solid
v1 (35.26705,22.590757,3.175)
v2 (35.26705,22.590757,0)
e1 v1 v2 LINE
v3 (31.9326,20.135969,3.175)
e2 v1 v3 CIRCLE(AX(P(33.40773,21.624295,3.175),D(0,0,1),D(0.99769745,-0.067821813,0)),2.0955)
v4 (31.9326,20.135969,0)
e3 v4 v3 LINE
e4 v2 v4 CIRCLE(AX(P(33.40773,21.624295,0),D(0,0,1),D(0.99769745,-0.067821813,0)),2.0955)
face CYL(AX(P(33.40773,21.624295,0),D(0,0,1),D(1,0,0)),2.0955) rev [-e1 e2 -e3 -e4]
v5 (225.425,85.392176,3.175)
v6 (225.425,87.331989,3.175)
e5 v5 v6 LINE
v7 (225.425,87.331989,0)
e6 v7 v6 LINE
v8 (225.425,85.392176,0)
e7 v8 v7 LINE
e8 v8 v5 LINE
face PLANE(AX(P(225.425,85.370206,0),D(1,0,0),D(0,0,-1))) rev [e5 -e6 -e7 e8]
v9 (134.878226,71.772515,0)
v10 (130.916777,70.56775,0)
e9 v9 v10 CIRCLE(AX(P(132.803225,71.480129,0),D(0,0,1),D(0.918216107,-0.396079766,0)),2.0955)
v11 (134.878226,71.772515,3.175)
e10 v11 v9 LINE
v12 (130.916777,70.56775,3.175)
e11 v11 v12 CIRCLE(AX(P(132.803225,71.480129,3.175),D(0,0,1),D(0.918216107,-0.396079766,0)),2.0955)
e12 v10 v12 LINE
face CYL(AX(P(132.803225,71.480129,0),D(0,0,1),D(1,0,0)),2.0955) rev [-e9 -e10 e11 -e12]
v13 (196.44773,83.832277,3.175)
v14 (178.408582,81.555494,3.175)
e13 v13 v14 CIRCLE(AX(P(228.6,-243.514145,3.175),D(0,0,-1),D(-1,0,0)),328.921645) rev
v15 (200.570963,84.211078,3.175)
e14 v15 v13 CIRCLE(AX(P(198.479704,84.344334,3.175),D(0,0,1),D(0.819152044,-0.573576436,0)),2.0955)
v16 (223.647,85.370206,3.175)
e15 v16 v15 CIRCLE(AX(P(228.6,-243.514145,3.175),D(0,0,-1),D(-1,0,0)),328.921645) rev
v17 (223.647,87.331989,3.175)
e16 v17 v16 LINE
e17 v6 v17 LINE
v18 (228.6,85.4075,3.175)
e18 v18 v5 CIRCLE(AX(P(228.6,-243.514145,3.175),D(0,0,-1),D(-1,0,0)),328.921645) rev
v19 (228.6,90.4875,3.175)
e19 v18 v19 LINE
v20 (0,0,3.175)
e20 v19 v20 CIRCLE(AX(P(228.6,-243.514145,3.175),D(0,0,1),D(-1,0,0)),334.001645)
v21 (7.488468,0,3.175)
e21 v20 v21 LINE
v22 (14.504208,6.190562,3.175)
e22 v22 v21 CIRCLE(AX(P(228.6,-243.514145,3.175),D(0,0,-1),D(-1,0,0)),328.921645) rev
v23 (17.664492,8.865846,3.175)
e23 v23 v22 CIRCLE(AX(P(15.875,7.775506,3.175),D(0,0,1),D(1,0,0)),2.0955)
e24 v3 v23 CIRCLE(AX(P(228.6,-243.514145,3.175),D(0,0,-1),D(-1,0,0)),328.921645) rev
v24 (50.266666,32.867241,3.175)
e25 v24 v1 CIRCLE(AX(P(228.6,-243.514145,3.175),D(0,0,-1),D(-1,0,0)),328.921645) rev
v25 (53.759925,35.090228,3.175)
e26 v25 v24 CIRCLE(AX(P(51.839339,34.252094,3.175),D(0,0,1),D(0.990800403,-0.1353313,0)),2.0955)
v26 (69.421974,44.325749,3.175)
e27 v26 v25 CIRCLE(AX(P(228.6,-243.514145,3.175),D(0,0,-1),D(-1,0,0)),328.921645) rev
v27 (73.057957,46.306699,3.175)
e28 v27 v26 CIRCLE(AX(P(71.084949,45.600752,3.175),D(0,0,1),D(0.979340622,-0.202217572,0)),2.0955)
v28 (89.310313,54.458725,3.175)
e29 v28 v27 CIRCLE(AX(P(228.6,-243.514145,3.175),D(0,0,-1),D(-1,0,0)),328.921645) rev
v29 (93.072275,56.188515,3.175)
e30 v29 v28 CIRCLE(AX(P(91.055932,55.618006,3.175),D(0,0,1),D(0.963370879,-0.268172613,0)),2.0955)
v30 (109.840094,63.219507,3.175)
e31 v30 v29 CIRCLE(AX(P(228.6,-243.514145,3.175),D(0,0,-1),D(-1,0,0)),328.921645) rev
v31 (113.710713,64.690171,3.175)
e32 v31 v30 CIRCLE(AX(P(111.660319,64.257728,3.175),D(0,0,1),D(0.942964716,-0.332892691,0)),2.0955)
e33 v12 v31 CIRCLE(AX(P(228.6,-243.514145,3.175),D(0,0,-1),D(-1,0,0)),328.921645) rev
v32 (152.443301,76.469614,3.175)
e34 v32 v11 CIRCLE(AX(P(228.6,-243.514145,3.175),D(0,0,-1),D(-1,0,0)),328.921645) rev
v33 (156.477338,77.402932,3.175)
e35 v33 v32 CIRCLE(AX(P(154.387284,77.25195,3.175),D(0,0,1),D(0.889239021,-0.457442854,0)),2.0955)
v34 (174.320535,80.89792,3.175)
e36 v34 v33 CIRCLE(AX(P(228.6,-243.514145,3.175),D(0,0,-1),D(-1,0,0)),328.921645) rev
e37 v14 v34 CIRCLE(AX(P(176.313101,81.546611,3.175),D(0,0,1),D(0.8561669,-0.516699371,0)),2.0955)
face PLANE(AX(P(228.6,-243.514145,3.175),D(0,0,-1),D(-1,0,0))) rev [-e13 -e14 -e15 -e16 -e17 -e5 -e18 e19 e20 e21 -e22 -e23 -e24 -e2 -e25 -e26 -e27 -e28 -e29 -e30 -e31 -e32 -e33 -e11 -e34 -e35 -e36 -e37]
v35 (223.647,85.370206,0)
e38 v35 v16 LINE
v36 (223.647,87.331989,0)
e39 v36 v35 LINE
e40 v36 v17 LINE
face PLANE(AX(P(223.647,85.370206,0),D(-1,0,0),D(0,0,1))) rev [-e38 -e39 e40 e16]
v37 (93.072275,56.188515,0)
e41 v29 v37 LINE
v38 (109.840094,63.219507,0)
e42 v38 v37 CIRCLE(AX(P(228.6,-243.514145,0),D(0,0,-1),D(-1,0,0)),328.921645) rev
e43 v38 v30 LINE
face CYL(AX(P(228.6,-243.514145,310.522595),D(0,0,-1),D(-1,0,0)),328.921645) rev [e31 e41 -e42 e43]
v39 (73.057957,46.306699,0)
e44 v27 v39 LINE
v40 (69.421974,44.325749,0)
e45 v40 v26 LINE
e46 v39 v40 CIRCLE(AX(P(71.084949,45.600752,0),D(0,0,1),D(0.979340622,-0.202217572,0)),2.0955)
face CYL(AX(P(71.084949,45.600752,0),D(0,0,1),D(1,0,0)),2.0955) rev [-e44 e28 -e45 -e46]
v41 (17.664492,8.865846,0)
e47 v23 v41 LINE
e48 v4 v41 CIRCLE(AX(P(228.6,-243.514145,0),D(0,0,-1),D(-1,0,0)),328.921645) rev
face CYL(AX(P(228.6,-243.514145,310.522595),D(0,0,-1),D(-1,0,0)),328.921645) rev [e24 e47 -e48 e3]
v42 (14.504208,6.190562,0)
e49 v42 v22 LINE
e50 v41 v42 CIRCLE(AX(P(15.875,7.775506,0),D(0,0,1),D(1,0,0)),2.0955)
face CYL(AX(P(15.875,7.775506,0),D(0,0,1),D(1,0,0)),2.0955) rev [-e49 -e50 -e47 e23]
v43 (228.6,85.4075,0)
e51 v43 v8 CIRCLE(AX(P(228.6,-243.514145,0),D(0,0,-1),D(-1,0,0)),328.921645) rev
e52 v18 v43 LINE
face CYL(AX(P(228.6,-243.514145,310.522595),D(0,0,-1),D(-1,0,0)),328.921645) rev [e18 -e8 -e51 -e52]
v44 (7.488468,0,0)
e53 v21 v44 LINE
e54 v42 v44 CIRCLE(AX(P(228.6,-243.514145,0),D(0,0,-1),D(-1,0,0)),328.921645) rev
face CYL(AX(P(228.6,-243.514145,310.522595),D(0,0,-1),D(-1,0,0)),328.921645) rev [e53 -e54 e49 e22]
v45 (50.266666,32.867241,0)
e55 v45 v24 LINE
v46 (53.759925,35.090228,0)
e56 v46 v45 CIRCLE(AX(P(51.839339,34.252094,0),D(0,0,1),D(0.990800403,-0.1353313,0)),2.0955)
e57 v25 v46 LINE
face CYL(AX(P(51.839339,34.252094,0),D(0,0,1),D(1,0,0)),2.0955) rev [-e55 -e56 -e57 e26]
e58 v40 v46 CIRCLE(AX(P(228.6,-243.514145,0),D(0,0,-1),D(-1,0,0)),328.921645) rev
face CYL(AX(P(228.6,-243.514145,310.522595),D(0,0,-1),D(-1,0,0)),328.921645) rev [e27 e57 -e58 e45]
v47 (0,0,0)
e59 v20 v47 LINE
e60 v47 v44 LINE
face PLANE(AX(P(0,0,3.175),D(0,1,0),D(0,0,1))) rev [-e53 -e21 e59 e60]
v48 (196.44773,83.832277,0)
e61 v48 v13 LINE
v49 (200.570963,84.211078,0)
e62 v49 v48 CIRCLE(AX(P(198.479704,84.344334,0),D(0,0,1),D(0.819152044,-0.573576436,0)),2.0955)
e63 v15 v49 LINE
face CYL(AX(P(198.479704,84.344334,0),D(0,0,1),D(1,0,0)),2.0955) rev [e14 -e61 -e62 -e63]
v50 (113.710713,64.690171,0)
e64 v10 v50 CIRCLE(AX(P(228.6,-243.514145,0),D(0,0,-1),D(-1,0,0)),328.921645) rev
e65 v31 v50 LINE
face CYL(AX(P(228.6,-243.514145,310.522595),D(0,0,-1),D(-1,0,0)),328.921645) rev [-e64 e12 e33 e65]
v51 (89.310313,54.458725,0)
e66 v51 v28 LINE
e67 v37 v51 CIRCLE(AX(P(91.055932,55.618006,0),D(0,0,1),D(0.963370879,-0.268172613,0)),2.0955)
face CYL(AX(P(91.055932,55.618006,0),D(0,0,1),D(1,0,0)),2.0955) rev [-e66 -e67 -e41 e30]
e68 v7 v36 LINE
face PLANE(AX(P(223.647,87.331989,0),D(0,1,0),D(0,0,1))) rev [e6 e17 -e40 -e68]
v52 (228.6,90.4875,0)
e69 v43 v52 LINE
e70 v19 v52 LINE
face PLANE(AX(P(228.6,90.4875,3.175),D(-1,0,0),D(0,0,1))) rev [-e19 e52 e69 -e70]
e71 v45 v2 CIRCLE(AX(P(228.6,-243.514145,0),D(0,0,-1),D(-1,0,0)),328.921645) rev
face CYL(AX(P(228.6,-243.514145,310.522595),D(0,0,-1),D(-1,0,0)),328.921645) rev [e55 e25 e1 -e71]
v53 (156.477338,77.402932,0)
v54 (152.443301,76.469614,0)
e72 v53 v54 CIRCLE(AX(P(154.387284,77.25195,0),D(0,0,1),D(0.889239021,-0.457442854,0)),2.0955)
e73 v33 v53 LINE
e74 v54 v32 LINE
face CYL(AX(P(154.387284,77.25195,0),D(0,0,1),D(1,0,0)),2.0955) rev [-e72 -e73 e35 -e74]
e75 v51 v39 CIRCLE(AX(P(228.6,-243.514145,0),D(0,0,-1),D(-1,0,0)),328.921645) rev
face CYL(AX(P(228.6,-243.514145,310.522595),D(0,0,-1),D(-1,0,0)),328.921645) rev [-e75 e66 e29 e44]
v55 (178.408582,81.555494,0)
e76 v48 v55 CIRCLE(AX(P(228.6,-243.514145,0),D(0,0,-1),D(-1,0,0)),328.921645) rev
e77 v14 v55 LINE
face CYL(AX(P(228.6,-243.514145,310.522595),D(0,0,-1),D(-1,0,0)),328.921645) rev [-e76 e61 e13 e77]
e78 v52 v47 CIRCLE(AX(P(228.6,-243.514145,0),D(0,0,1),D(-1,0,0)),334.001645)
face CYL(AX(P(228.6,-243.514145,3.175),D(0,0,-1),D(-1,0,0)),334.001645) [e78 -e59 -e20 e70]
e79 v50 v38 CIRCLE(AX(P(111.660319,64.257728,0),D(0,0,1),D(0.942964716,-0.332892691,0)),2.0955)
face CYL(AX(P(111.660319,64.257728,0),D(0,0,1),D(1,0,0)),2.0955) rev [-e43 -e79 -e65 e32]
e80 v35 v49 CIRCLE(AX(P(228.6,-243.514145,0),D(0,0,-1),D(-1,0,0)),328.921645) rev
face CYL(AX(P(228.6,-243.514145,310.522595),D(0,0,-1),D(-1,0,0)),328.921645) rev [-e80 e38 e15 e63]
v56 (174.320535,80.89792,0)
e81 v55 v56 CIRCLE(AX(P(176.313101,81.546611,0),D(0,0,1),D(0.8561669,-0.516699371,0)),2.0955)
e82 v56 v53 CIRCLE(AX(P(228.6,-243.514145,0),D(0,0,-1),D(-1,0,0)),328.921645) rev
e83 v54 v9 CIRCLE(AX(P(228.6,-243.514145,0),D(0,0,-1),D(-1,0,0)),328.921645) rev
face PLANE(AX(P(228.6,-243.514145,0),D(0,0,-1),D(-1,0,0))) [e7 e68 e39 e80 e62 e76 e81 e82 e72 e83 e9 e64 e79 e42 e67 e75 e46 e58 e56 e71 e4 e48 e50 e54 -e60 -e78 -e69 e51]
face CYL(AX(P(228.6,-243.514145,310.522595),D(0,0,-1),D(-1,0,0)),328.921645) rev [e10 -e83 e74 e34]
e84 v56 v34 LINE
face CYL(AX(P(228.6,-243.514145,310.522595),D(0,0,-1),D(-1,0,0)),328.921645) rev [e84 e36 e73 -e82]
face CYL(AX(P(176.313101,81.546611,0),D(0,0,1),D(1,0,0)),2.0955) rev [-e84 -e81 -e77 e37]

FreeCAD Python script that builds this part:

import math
import FreeCAD as App
import Part
import Sketcher
Q = App.Units.Quantity


def add_polygon(sketch, points):
    """Adds a closed chain of lines whose ends are joined by coincident constraints."""
    first, n = sketch.GeometryCount, len(points)
    for a, b in zip(points, points[1:] + points[:1]):
        sketch.addGeometry(Part.LineSegment(App.Vector(*a, 0), App.Vector(*b, 0)), False)
    for i in range(n):
        sketch.addConstraint(Sketcher.Constraint("Coincident", first + i, 2, first + (i + 1) % n, 1))

doc = App.newDocument("Part")
body = doc.addObject("PartDesign::Body", "Body")

sketch1 = body.newObject("Sketcher::SketchObject", "Sketch")
sketch1.AttachmentSupport = (doc.getObject("XY_Plane"), [""])
sketch1.MapMode = "FlatFace"
sketch1.addGeometry(Part.LineSegment(App.Vector(0, 0, 0), App.Vector(228.6, 0, 0)), False)
sketch1.addGeometry(Part.LineSegment(App.Vector(228.6, 0, 0), App.Vector(228.6, 90.4875, 0)), False)
sketch1.addGeometry(Part.ArcOfCircle(Part.Circle(App.Vector(228.6, -243.514145, 0), App.Vector(0, 0, 1), 334.001645), math.radians(90), math.radians(133.190621)), False)
sketch1.addGeometry(Part.LineSegment(App.Vector(209.55, 9.525, 0), App.Vector(40.029392, 9.525, 0)), False)
sketch1.addGeometry(Part.ArcOfCircle(Part.Circle(App.Vector(40.029392, 12.7, 0), App.Vector(0, 0, 1), 3.175), math.radians(126.352633), math.radians(270)), False)
sketch1.addGeometry(Part.ArcOfCircle(Part.Circle(App.Vector(228.6, -243.514145, 0), App.Vector(0, 0, 1), 321.301645), math.radians(92.287925), math.radians(126.352633)), False)
sketch1.addGeometry(Part.ArcOfCircle(Part.Circle(App.Vector(215.9, 74.358899, 0), App.Vector(0, 0, 1), 3.175), math.radians(0), math.radians(92.287925)), False)
sketch1.addGeometry(Part.LineSegment(App.Vector(219.075, 74.358899, 0), App.Vector(219.075, 19.05, 0)), False)
sketch1.addGeometry(Part.ArcOfCircle(Part.Circle(App.Vector(209.55, 19.05, 0), App.Vector(0, 0, 1), 9.525), math.radians(-90), math.radians(0)), False)
sketch1.addConstraint(Sketcher.Constraint("Coincident", 0, 2, 1, 1))
sketch1.addConstraint(Sketcher.Constraint("Coincident", 1, 2, 2, 1))
sketch1.addConstraint(Sketcher.Constraint("Coincident", 2, 2, 0, 1))
sketch1.addConstraint(Sketcher.Constraint("Tangent", 3, 2, 4, 2))
sketch1.addConstraint(Sketcher.Constraint("Tangent", 4, 1, 5, 2))
sketch1.addConstraint(Sketcher.Constraint("Tangent", 5, 1, 6, 2))
sketch1.addConstraint(Sketcher.Constraint("Tangent", 6, 1, 7, 1))
sketch1.addConstraint(Sketcher.Constraint("Tangent", 7, 2, 8, 2))
sketch1.addConstraint(Sketcher.Constraint("Tangent", 8, 1, 3, 1))
sketch1.addConstraint(Sketcher.Constraint("Horizontal", 0))
sketch1.addConstraint(Sketcher.Constraint("Vertical", 1))
sketch1.addConstraint(Sketcher.Constraint("Horizontal", 3))
sketch1.addConstraint(Sketcher.Constraint("Vertical", 7))
sketch1.addConstraint(Sketcher.Constraint("Coincident", 2, 2, -1, 1))
sketch1.addConstraint(Sketcher.Constraint("Coincident", 5, 3, 2, 3))
sketch1.addConstraint(Sketcher.Constraint("Equal", 4, 6))
sketch1.addConstraint(Sketcher.Constraint("Vertical", 5, 3, 0, 2))
sketch1.addConstraint(Sketcher.Constraint("DistanceX", 0, 1, 0, 2, Q("9 in")))
sketch1.addConstraint(Sketcher.Constraint("Radius", 4, Q("0.125 in")))
sketch1.addConstraint(Sketcher.Constraint("Radius", 8, Q("0.375 in")))
sketch1.addConstraint(Sketcher.Constraint("DistanceY", -1, 1, 4, 3, Q("0.5 in")))
sketch1.addConstraint(Sketcher.Constraint("DistanceX", -1, 1, 6, 3, Q("8.5 in")))
sketch1.addConstraint(Sketcher.Constraint("DistanceY", 1, 1, 1, 2, Q("3.5625 in")))
sketch1.addConstraint(Sketcher.Constraint("DistanceY", 7, 2, 7, 1, 55.308899))
pad1 = body.newObject("PartDesign::Pad", "Pad")
pad1.Profile = sketch1
pad1.Length = Q("0.125 in")

sketch2 = body.newObject("Sketcher::SketchObject", "Sketch001")
sketch2.AttachmentSupport = (doc.getObject("XY_Plane"), [""])
sketch2.MapMode = "FlatFace"
sketch2.AttachmentOffset = App.Placement(App.Vector(0, 0, 0.125 * 25.4), App.Rotation())
sketch2.addGeometry(Part.Circle(App.Vector(15.875, 7.775506, 0), App.Vector(0, 0, 1), 2.0955), False)
sketch2.addConstraint(Sketcher.Constraint("Diameter", 0, Q("0.165 in")))
sketch2.addConstraint(Sketcher.Constraint("DistanceX", -1, 1, 0, 3, Q("0.625 in")))
sketch2.addConstraint(Sketcher.Constraint("DistanceY", -1, 1, 0, 3, 7.775506))
pocket1 = body.newObject("PartDesign::Pocket", "Pocket")
pocket1.Profile = sketch2
pocket1.Type = "ThroughAll"
doc.recompute()

datumline = body.newObject("PartDesign::Line", "DatumLine")
datumline.Placement = App.Placement(App.Vector(228.6, -243.514145, 0), App.Rotation(App.Vector(0, 0, 1), App.Vector(0, 0, -1)))
polarpattern = body.newObject("PartDesign::PolarPattern", "PolarPattern")
polarpattern.Originals = [pocket1]
polarpattern.Axis = (datumline, [""])
polarpattern.Angle = 35
polarpattern.Occurrences = 10
body.Tip = polarpattern

sketch3 = body.newObject("Sketcher::SketchObject", "Sketch002")
sketch3.AttachmentSupport = (doc.getObject("XY_Plane"), [""])
sketch3.MapMode = "FlatFace"
sketch3.AttachmentOffset = App.Placement(App.Vector(0, 0, 0.125 * 25.4), App.Rotation())
sketch3.addGeometry(Part.LineSegment(App.Vector(726.667213, 85.4075, 0), App.Vector(228.6, 85.4075, 0)), False)
sketch3.addGeometry(Part.ArcOfCircle(Part.Circle(App.Vector(228.6, -243.514145, 0), App.Vector(0, 0, 1), 328.921645), math.radians(90), math.radians(133.190621)), False)
sketch3.addGeometry(Part.LineSegment(App.Vector(3.476893, -3.70373, 0), App.Vector(-359.654287, -344.59476, 0)), False)
sketch3.addGeometry(Part.LineSegment(App.Vector(-359.654287, -344.59476, 0), App.Vector(6.971445, -1270.807137, 0)), False)
sketch3.addGeometry(Part.LineSegment(App.Vector(6.971445, -1270.807137, 0), App.Vector(1093.292945, -840.804876, 0)), False)
sketch3.addGeometry(Part.LineSegment(App.Vector(1093.292945, -840.804876, 0), App.Vector(726.667213, 85.4075, 0)), False)
sketch3.addConstraint(Sketcher.Constraint("Tangent", 0, 2, 1, 1))
sketch3.addConstraint(Sketcher.Constraint("Tangent", 1, 2, 2, 1))
sketch3.addConstraint(Sketcher.Constraint("Coincident", 2, 2, 3, 1))
sketch3.addConstraint(Sketcher.Constraint("Coincident", 3, 2, 4, 1))
sketch3.addConstraint(Sketcher.Constraint("Coincident", 4, 2, 5, 1))
sketch3.addConstraint(Sketcher.Constraint("Coincident", 5, 2, 0, 1))
sketch3.addConstraint(Sketcher.Constraint("Horizontal", 0))
sketch3.addConstraint(Sketcher.Constraint("Perpendicular", 3, 4))
sketch3.addConstraint(Sketcher.Constraint("Perpendicular", 4, 5))
sketch3.addConstraint(Sketcher.Constraint("Equal", 3, 5))
sketch3.addConstraint(Sketcher.Constraint("DistanceX", -1, 1, 1, 3, Q("9 in")))
sketch3.addConstraint(Sketcher.Constraint("DistanceY", -1, 1, 0, 2, Q("3.3625 in")))
sketch3.addConstraint(Sketcher.Constraint("Radius", 1, 328.921645))
sketch3.addConstraint(Sketcher.Constraint("DistanceX", 3, 2, 4, 2, 1086.3215))
sketch3.addConstraint(Sketcher.Constraint("Distance", 4, 1168.33058))
sketch3.addConstraint(Sketcher.Constraint("DistanceX", 0, 2, 0, 1, 498.067213))
sketch3.addConstraint(Sketcher.Constraint("DistanceY", 4, 2, 1, 3, 597.290732))
pocket2 = body.newObject("PartDesign::Pocket", "Pocket001")
pocket2.Profile = sketch3
pocket2.Type = "ThroughAll"
pocket2.Midplane = True

sketch4 = body.newObject("Sketcher::SketchObject", "Sketch003")
sketch4.AttachmentSupport = (doc.getObject("XY_Plane"), [""])
sketch4.MapMode = "FlatFace"
sketch4.AttachmentOffset = App.Placement(App.Vector(0, 0, 0.125 * 25.4), App.Rotation())
add_polygon(sketch4, [(223.647, 87.331989), (223.647, 85.370206), (225.425, 85.370206), (225.425, 87.331989)])
sketch4.addConstraint(Sketcher.Constraint("Vertical", 0))
sketch4.addConstraint(Sketcher.Constraint("Horizontal", 1))
sketch4.addConstraint(Sketcher.Constraint("Vertical", 2))
sketch4.addConstraint(Sketcher.Constraint("Horizontal", 3))
sketch4.addConstraint(Sketcher.Constraint("DistanceX", 1, 1, 1, 2, Q("0.07 in")))
sketch4.addConstraint(Sketcher.Constraint("DistanceX", -1, 1, 0, 2, Q("8.805 in")))
sketch4.addConstraint(Sketcher.Constraint("DistanceY", 0, 2, 0, 1, 1.961783))
sketch4.addConstraint(Sketcher.Constraint("DistanceY", -1, 1, 2, 2, 87.331989))
pocket3 = body.newObject("PartDesign::Pocket", "Pocket002")
pocket3.Profile = sketch4
pocket3.Type = "ThroughAll"

doc.recompute()
